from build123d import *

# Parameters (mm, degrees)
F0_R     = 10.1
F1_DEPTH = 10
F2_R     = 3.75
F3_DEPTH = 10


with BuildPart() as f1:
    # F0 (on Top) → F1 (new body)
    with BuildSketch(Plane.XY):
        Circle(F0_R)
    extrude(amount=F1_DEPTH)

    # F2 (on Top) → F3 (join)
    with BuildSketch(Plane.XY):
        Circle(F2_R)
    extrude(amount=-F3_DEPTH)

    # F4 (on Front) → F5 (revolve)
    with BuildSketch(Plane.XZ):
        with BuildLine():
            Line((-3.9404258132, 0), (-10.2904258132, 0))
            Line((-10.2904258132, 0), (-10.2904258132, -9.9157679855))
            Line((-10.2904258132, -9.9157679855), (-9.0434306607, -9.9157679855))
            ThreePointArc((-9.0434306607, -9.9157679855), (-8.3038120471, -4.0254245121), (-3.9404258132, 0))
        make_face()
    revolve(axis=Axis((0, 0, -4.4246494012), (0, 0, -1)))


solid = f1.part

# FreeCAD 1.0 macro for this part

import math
import FreeCAD as App
import Part
import Sketcher

V = App.Vector
Q = App.Units.Quantity

doc = App.newDocument("Part")
body = doc.addObject("PartDesign::Body", "Body")

sketch1 = body.newObject("Sketcher::SketchObject", "Sketch")
sketch1.AttachmentSupport = (doc.getObject("XY_Plane"), [""])
sketch1.MapMode = "FlatFace"
sketch1.addGeometry(Part.Circle(V(0, 0, 0), V(0, 0, 1), 10), False)
sketch1.addConstraint([
    Sketcher.Constraint("Coincident", 0, 3, -1, 1),
    Sketcher.Constraint("Diameter", 0, Q("20.2 mm")),
])
pad1 = body.newObject("PartDesign::Pad", "Pad")
pad1.Profile = sketch1
pad1.Length = 10

sketch2 = body.newObject("Sketcher::SketchObject", "Sketch001")
sketch2.AttachmentSupport = (doc.getObject("XY_Plane"), [""])
sketch2.MapMode = "FlatFace"
sketch2.addGeometry(Part.Circle(V(0, 0, 0), V(0, 0, 1), 3.8), False)
sketch2.addConstraint([
    Sketcher.Constraint("Coincident", 0, 3, -1, 1),
    Sketcher.Constraint("Diameter", 0, Q("7.5 mm")),
])
pad2 = body.newObject("PartDesign::Pad", "Pad001")
pad2.Profile = sketch2
pad2.Length = 10
pad2.Reversed = True

sketch3 = body.newObject("Sketcher::SketchObject", "Sketch002")
sketch3.AttachmentSupport = (doc.getObject("XZ_Plane"), [""])
sketch3.MapMode = "FlatFace"
sketch3.addGeometry([
    Part.LineSegment(V(-3.9, 0, 0), V(-10.3, 0, 0)),
    Part.LineSegment(V(-10.3, 0, 0), V(-10.3, -9.9, 0)),
    Part.LineSegment(V(-10.3, -9.9, 0), V(-9, -9.9, 0)),
    Part.ArcOfCircle(Part.Circle(V(-0.6, -8, 0), V(0, 0, 1), 8.6), math.radians(113), math.radians(193)),
], False)
sketch3.addConstraint([
    Sketcher.Constraint("Coincident", 0, 2, 1, 1),
    Sketcher.Constraint("Coincident", 1, 2, 2, 1),
    Sketcher.Constraint("Coincident", 2, 2, 3, 2),
    Sketcher.Constraint("Coincident", 3, 1, 0, 1),
    Sketcher.Constraint("Horizontal", 0),
    Sketcher.Constraint("Vertical", 1),
    Sketcher.Constraint("Horizontal", 2),
    Sketcher.Constraint("PointOnObject", 0, 2, -1),
    Sketcher.Constraint("DistanceX", 0, 2, 0, 1, Q("6.35 mm")),
    Sketcher.Constraint("Radius", 3, Q("8.647595 mm")),
    Sketcher.Constraint("DistanceX", 2, 1, 2, 2, Q("1.246995 mm")),
    Sketcher.Constraint("DistanceY", 1, 2, 1, 1, Q("9.915768 mm")),
    Sketcher.Constraint("DistanceX", 2, 2, -1, 1, Q("9.043431 mm")),
])
revolution = body.newObject("PartDesign::Revolution", "Revolution")
revolution.Profile = sketch3
revolution.ReferenceAxis = (sketch3, ["V_Axis"])
revolution.Angle = 360

doc.recompute()
